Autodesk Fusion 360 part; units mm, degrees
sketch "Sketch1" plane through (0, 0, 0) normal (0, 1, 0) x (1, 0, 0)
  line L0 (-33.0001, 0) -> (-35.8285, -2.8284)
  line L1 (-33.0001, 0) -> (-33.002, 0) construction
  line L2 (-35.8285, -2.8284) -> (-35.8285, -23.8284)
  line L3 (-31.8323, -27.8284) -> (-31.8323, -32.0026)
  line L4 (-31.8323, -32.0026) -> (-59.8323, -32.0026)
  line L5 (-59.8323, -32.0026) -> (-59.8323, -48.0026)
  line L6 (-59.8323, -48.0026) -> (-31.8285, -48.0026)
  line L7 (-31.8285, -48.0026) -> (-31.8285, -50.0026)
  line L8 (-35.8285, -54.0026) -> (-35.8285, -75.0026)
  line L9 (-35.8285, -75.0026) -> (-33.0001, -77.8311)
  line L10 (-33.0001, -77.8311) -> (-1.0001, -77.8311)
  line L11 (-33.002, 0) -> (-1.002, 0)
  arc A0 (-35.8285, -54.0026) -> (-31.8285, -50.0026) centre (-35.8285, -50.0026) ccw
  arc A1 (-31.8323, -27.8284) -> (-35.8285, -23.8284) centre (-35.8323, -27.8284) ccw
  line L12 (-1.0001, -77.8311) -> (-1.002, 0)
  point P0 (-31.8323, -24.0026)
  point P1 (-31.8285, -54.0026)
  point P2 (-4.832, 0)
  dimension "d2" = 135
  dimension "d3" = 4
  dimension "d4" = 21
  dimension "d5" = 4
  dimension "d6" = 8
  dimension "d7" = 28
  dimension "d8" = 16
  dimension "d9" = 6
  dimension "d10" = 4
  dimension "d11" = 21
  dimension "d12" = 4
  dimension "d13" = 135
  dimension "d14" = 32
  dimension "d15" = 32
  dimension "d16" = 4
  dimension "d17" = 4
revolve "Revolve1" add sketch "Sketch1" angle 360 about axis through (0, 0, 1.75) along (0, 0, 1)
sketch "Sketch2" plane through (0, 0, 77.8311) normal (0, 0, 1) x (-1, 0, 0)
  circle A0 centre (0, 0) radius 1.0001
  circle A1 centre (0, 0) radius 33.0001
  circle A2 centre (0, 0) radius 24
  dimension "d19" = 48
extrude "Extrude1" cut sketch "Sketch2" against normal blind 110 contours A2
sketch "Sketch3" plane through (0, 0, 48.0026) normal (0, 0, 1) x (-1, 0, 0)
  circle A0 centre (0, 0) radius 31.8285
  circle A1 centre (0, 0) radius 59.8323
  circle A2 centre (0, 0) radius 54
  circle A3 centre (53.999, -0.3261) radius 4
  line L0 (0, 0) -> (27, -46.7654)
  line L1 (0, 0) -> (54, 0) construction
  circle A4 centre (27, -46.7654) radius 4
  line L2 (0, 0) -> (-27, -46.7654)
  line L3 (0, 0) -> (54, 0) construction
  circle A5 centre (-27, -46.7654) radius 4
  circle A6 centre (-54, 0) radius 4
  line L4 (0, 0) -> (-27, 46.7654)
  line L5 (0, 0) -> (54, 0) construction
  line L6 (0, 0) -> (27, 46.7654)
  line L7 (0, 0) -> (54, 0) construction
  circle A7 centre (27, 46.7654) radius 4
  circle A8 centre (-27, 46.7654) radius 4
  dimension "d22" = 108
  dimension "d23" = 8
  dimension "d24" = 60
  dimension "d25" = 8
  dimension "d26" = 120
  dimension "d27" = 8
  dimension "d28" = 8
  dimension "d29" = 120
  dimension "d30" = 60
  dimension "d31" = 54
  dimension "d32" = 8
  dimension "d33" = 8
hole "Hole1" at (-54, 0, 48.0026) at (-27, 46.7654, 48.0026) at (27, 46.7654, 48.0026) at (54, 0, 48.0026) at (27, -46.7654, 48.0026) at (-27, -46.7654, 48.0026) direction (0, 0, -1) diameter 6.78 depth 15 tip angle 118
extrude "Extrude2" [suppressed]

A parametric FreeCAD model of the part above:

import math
import FreeCAD as App
import Part
import Sketcher
from FreeCAD import Vector
Q = App.Units.Quantity

doc = App.newDocument("Part")
params = doc.addObject("Spreadsheet::Sheet", "Params")
for row, (alias, value) in enumerate([
    ("sketch1_radius", "4 mm"),
    ("sketch1_width", "28 mm"),
    ("sketch1_width2", "32 mm"),
    ("sketch1_height", "21 mm"),
    ("sketch1_height2", "16 mm"),
    ("revolution_angle", "360 deg"),
    ("sketch2_diameter", "48 mm"),
    ("pocket1_length", "110 mm"),
    ("sketch3_diameter", "6.78 mm"),
    ("hole_diameter", "6.78 mm"),
    ("hole_depth", "15 mm"),
], start=1):
    params.set(f"A{row}", alias)
    params.set(f"B{row}", "=" + value)
    params.setAlias(f"B{row}", alias)

body = doc.addObject("PartDesign::Body", "Body")

# Sketch on XZ plane
sketch1 = body.newObject("Sketcher::SketchObject", "Sketch")
sketch1.AttachmentSupport = (doc.getObject("XZ_Plane"), [""])
sketch1.MapMode = "FlatFace"
sketch1.addGeometry([
    Part.LineSegment(Vector(-1, 0, 0), Vector(-33, 0, 0)),  # 0
    Part.LineSegment(Vector(-33, 0, 0), Vector(-35.8, 2.8, 0)),  # 1
    Part.LineSegment(Vector(-35.8, 2.8, 0), Vector(-35.8, 23.8, 0)),  # 2
    Part.ArcOfCircle(Part.Circle(Vector(-35.8, 27.8, 0), Vector(0, 0, 1), 4), math.radians(-90), math.radians(0)),  # 3
    Part.LineSegment(Vector(-31.8, 27.8, 0), Vector(-31.8, 32, 0)),  # 4
    Part.LineSegment(Vector(-31.8, 32, 0), Vector(-59.8, 32, 0)),  # 5
    Part.LineSegment(Vector(-59.8, 32, 0), Vector(-59.8, 48, 0)),  # 6
    Part.LineSegment(Vector(-59.8, 48, 0), Vector(-31.8, 48, 0)),  # 7
    Part.LineSegment(Vector(-31.8, 48, 0), Vector(-31.8, 50, 0)),  # 8
    Part.ArcOfCircle(Part.Circle(Vector(-35.8, 50, 0), Vector(0, 0, 1), 4), math.radians(0), math.radians(90)),  # 9
    Part.LineSegment(Vector(-35.8, 54, 0), Vector(-35.8, 75, 0)),  # 10
    Part.LineSegment(Vector(-35.8, 75, 0), Vector(-33, 77.8, 0)),  # 11
    Part.LineSegment(Vector(-33, 77.8, 0), Vector(-1, 77.8, 0)),  # 12
    Part.LineSegment(Vector(-1, 77.8, 0), Vector(-1, 0, 0)),  # 13
], False)
sketch1.addConstraint([
    Sketcher.Constraint("Coincident", 0, 2, 1, 1),
    Sketcher.Constraint("Coincident", 1, 2, 2, 1),
    Sketcher.Constraint("Coincident", 2, 2, 3, 1),
    Sketcher.Constraint("Tangent", 3, 2, 4, 1),
    Sketcher.Constraint("Coincident", 4, 2, 5, 1),
    Sketcher.Constraint("Coincident", 5, 2, 6, 1),
    Sketcher.Constraint("Coincident", 6, 2, 7, 1),
    Sketcher.Constraint("Coincident", 7, 2, 8, 1),
    Sketcher.Constraint("Tangent", 8, 2, 9, 1),
    Sketcher.Constraint("Coincident", 9, 2, 10, 1),
    Sketcher.Constraint("Coincident", 10, 2, 11, 1),
    Sketcher.Constraint("Coincident", 11, 2, 12, 1),
    Sketcher.Constraint("Coincident", 12, 2, 13, 1),
    Sketcher.Constraint("Coincident", 13, 2, 0, 1),
    Sketcher.Constraint("Horizontal", 0),
    Sketcher.Constraint("Vertical", 2),
    Sketcher.Constraint("Vertical", 4),
    Sketcher.Constraint("Horizontal", 5),
    Sketcher.Constraint("Vertical", 6),
    Sketcher.Constraint("Horizontal", 7),
    Sketcher.Constraint("Vertical", 8),
    Sketcher.Constraint("Vertical", 10),
    Sketcher.Constraint("Horizontal", 12),
    Sketcher.Constraint("Equal", 3, 9),
    Sketcher.Constraint("PointOnObject", 0, 2, -1),
    Sketcher.Constraint("Perpendicular", 1, 11),
    Sketcher.Constraint("Vertical", 9, 3, 1, 2),
    Sketcher.Constraint("Vertical", 2, 2, 9, 2),
    Sketcher.Constraint("Vertical", 0, 2, 11, 2),
    Sketcher.Constraint("Equal", 2, 10),
    Sketcher.Constraint("Equal", 1, 11),
    Sketcher.Constraint("Radius", 3, Q("4 mm")),
    Sketcher.Constraint("DistanceX", 5, 2, 5, 1, Q("28 mm")),
    Sketcher.Constraint("DistanceX", 12, 1, 12, 2, Q("32 mm")),
    Sketcher.Constraint("DistanceY", 2, 1, 2, 2, Q("21 mm")),
    Sketcher.Constraint("DistanceY", 6, 1, 6, 2, Q("16 mm")),
    Sketcher.Constraint("Distance", 1, Q("4 mm")),
    Sketcher.Constraint("DistanceY", 7, 2, 9, 2, Q("6 mm")),
    Sketcher.Constraint("DistanceX", 0, 2, -1, 1, Q("33 mm")),
    Sketcher.Constraint("DistanceX", 0, 2, 0, 1, Q("31.998 mm")),
    Sketcher.Constraint("Distance", 13, Q("77.831 mm")),
    Sketcher.Constraint("DistanceX", 7, 1, 7, 2, Q("28.0038 mm")),
])
sketch1.setExpression("Constraints[31]", "Params.sketch1_radius")
sketch1.setExpression("Constraints[32]", "Params.sketch1_width")
sketch1.setExpression("Constraints[33]", "Params.sketch1_width2")
sketch1.setExpression("Constraints[34]", "Params.sketch1_height")
sketch1.setExpression("Constraints[35]", "Params.sketch1_height2")
revolution = body.newObject("PartDesign::Revolution", "Revolution")
revolution.Profile = sketch1
revolution.ReferenceAxis = (sketch1, ["V_Axis"])
revolution.setExpression("Angle", "Params.revolution_angle")

# Sketch on XY plane
sketch2 = body.newObject("Sketcher::SketchObject", "Sketch001")
sketch2.AttachmentSupport = (doc.getObject("XY_Plane"), [""])
sketch2.MapMode = "FlatFace"
sketch2.AttachmentOffset = App.Placement(Vector(0, 0, 77.8311), App.Rotation())
sketch2.addGeometry([
    Part.Circle(Vector(0, 0, 0), Vector(0, 0, 1), 24),
    Part.Circle(Vector(0, 0, 0), Vector(0, 0, 1), 1),
], False)
sketch2.addConstraint([
    Sketcher.Constraint("Coincident", 0, 3, -1, 1),
    Sketcher.Constraint("Coincident", 1, 3, -1, 1),
    Sketcher.Constraint("Diameter", 0, Q("48 mm")),
    Sketcher.Constraint("Diameter", 1, Q("2.0002 mm")),
])
sketch2.setExpression("Constraints[2]", "Params.sketch2_diameter")
pocket1 = body.newObject("PartDesign::Pocket", "Pocket")
pocket1.Profile = sketch2
pocket1.setExpression("Length", "Params.pocket1_length")

# Sketch on XY plane
sketch3 = body.newObject("Sketcher::SketchObject", "Sketch002")
sketch3.AttachmentSupport = (doc.getObject("XY_Plane"), [""])
sketch3.MapMode = "FlatFace"
sketch3.AttachmentOffset = App.Placement(Vector(0, 0, 48.0026), App.Rotation())
sketch3.addGeometry([
    Part.Circle(Vector(-54, 0, 0), Vector(0, 0, 1), 3.4),  # 0
    Part.Circle(Vector(-27, 46.8, 0), Vector(0, 0, 1), 3.4),  # 1
    Part.Circle(Vector(27, 46.8, 0), Vector(0, 0, 1), 3.4),  # 2
    Part.Circle(Vector(54, 0, 0), Vector(0, 0, 1), 3.4),  # 3
    Part.Circle(Vector(27, -46.8, 0), Vector(0, 0, 1), 3.4),  # 4
    Part.Circle(Vector(-27, -46.8, 0), Vector(0, 0, 1), 3.4),  # 5
], False)
sketch3.addConstraint([
    Sketcher.Constraint("Equal", 0, 1),
    Sketcher.Constraint("Equal", 1, 2),
    Sketcher.Constraint("Equal", 2, 3),
    Sketcher.Constraint("Equal", 3, 4),
    Sketcher.Constraint("Equal", 4, 5),
    Sketcher.Constraint("Symmetric", 0, 3, 3, 3, -1, 1),
    Sketcher.Constraint("Symmetric", 1, 3, 4, 3, -1, 1),
    Sketcher.Constraint("Symmetric", 2, 3, 5, 3, -1, 1),
    Sketcher.Constraint("Symmetric", 1, 3, 2, 3, -2),
    Sketcher.Constraint("PointOnObject", 0, 3, -1),
    Sketcher.Constraint("Diameter", 0, Q("6.78 mm")),
    Sketcher.Constraint("DistanceX", 0, 3, -1, 1, Q("54 mm")),
    Sketcher.Constraint("DistanceX", 1, 3, -1, 1, Q("27 mm")),
    Sketcher.Constraint("DistanceY", -1, 1, 1, 3, Q("46.7654 mm")),
])
sketch3.setExpression("Constraints[10]", "Params.sketch3_diameter")
doc.recompute()
hole = body.newObject("PartDesign::Hole", "Hole")
hole.Profile = sketch3
hole.ThreadType = "None"
hole.setExpression("Diameter", "Params.hole_diameter")
hole.DepthType = "Dimension"
hole.setExpression("Depth", "Params.hole_depth")
hole.DrillPoint = "Angled"
hole.DrillPointAngle = 118

doc.recompute()
